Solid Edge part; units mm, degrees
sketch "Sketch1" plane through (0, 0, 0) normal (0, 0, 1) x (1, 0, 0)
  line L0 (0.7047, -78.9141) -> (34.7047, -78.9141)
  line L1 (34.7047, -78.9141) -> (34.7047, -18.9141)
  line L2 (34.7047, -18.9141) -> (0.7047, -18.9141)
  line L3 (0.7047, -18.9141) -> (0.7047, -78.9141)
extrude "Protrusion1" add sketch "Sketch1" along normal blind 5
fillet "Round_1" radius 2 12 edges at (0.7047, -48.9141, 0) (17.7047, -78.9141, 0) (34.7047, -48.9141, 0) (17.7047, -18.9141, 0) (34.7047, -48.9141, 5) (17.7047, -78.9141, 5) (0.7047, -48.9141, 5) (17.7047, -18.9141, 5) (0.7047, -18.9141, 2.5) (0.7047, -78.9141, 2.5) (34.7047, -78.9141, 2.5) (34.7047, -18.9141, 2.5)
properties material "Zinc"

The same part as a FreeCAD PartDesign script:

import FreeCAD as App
import Part
import Sketcher

V = App.Vector
Q = App.Units.Quantity

doc = App.newDocument("Part")
params = doc.addObject("Spreadsheet::Sheet", "Params")
for row, (alias, value) in enumerate([
    ("sketch1_width", "34 mm"),
    ("sketch1_height", "60 mm"),
    ("pad1_length", "5 mm"),
    ("fillet_radius", "2 mm"),
], start=1):
    params.set(f"A{row}", alias)
    params.set(f"B{row}", "=" + value)
    params.setAlias(f"B{row}", alias)

body = doc.addObject("PartDesign::Body", "Body")

# Sketch on XY plane
sketch1 = body.newObject("Sketcher::SketchObject", "Sketch")
sketch1.AttachmentSupport = (doc.getObject("XY_Plane"), [""])
sketch1.MapMode = "FlatFace"
sketch1.addGeometry([
    Part.LineSegment(V(1, -19, 0), V(1, -79, 0)),
    Part.LineSegment(V(1, -79, 0), V(35, -79, 0)),
    Part.LineSegment(V(35, -79, 0), V(35, -19, 0)),
    Part.LineSegment(V(35, -19, 0), V(1, -19, 0)),
], False)
sketch1.addConstraint([
    Sketcher.Constraint("Coincident", 0, 2, 1, 1),
    Sketcher.Constraint("Coincident", 1, 2, 2, 1),
    Sketcher.Constraint("Coincident", 2, 2, 3, 1),
    Sketcher.Constraint("Coincident", 3, 2, 0, 1),
    Sketcher.Constraint("Vertical", 0),
    Sketcher.Constraint("Horizontal", 1),
    Sketcher.Constraint("Vertical", 2),
    Sketcher.Constraint("Horizontal", 3),
    Sketcher.Constraint("DistanceX", 1, 1, 1, 2, Q("34 mm")),
    Sketcher.Constraint("DistanceY", 0, 2, 0, 1, Q("60 mm")),
    Sketcher.Constraint("DistanceY", 0, 2, -1, 1, Q("78.914 mm")),
    Sketcher.Constraint("DistanceX", -1, 1, 0, 2, Q("0.7047 mm")),
])
sketch1.setExpression("Constraints[8]", "Params.sketch1_width")
sketch1.setExpression("Constraints[9]", "Params.sketch1_height")
pad1 = body.newObject("PartDesign::Pad", "Pad")
pad1.Profile = sketch1
pad1.setExpression("Length", "Params.pad1_length")
doc.recompute()

fillet = body.newObject("PartDesign::Fillet", "Fillet")
fillet.Base = (pad1, ["Edge1"])
fillet.UseAllEdges = True
fillet.setExpression("Radius", "Params.fillet_radius")

doc.recompute()
